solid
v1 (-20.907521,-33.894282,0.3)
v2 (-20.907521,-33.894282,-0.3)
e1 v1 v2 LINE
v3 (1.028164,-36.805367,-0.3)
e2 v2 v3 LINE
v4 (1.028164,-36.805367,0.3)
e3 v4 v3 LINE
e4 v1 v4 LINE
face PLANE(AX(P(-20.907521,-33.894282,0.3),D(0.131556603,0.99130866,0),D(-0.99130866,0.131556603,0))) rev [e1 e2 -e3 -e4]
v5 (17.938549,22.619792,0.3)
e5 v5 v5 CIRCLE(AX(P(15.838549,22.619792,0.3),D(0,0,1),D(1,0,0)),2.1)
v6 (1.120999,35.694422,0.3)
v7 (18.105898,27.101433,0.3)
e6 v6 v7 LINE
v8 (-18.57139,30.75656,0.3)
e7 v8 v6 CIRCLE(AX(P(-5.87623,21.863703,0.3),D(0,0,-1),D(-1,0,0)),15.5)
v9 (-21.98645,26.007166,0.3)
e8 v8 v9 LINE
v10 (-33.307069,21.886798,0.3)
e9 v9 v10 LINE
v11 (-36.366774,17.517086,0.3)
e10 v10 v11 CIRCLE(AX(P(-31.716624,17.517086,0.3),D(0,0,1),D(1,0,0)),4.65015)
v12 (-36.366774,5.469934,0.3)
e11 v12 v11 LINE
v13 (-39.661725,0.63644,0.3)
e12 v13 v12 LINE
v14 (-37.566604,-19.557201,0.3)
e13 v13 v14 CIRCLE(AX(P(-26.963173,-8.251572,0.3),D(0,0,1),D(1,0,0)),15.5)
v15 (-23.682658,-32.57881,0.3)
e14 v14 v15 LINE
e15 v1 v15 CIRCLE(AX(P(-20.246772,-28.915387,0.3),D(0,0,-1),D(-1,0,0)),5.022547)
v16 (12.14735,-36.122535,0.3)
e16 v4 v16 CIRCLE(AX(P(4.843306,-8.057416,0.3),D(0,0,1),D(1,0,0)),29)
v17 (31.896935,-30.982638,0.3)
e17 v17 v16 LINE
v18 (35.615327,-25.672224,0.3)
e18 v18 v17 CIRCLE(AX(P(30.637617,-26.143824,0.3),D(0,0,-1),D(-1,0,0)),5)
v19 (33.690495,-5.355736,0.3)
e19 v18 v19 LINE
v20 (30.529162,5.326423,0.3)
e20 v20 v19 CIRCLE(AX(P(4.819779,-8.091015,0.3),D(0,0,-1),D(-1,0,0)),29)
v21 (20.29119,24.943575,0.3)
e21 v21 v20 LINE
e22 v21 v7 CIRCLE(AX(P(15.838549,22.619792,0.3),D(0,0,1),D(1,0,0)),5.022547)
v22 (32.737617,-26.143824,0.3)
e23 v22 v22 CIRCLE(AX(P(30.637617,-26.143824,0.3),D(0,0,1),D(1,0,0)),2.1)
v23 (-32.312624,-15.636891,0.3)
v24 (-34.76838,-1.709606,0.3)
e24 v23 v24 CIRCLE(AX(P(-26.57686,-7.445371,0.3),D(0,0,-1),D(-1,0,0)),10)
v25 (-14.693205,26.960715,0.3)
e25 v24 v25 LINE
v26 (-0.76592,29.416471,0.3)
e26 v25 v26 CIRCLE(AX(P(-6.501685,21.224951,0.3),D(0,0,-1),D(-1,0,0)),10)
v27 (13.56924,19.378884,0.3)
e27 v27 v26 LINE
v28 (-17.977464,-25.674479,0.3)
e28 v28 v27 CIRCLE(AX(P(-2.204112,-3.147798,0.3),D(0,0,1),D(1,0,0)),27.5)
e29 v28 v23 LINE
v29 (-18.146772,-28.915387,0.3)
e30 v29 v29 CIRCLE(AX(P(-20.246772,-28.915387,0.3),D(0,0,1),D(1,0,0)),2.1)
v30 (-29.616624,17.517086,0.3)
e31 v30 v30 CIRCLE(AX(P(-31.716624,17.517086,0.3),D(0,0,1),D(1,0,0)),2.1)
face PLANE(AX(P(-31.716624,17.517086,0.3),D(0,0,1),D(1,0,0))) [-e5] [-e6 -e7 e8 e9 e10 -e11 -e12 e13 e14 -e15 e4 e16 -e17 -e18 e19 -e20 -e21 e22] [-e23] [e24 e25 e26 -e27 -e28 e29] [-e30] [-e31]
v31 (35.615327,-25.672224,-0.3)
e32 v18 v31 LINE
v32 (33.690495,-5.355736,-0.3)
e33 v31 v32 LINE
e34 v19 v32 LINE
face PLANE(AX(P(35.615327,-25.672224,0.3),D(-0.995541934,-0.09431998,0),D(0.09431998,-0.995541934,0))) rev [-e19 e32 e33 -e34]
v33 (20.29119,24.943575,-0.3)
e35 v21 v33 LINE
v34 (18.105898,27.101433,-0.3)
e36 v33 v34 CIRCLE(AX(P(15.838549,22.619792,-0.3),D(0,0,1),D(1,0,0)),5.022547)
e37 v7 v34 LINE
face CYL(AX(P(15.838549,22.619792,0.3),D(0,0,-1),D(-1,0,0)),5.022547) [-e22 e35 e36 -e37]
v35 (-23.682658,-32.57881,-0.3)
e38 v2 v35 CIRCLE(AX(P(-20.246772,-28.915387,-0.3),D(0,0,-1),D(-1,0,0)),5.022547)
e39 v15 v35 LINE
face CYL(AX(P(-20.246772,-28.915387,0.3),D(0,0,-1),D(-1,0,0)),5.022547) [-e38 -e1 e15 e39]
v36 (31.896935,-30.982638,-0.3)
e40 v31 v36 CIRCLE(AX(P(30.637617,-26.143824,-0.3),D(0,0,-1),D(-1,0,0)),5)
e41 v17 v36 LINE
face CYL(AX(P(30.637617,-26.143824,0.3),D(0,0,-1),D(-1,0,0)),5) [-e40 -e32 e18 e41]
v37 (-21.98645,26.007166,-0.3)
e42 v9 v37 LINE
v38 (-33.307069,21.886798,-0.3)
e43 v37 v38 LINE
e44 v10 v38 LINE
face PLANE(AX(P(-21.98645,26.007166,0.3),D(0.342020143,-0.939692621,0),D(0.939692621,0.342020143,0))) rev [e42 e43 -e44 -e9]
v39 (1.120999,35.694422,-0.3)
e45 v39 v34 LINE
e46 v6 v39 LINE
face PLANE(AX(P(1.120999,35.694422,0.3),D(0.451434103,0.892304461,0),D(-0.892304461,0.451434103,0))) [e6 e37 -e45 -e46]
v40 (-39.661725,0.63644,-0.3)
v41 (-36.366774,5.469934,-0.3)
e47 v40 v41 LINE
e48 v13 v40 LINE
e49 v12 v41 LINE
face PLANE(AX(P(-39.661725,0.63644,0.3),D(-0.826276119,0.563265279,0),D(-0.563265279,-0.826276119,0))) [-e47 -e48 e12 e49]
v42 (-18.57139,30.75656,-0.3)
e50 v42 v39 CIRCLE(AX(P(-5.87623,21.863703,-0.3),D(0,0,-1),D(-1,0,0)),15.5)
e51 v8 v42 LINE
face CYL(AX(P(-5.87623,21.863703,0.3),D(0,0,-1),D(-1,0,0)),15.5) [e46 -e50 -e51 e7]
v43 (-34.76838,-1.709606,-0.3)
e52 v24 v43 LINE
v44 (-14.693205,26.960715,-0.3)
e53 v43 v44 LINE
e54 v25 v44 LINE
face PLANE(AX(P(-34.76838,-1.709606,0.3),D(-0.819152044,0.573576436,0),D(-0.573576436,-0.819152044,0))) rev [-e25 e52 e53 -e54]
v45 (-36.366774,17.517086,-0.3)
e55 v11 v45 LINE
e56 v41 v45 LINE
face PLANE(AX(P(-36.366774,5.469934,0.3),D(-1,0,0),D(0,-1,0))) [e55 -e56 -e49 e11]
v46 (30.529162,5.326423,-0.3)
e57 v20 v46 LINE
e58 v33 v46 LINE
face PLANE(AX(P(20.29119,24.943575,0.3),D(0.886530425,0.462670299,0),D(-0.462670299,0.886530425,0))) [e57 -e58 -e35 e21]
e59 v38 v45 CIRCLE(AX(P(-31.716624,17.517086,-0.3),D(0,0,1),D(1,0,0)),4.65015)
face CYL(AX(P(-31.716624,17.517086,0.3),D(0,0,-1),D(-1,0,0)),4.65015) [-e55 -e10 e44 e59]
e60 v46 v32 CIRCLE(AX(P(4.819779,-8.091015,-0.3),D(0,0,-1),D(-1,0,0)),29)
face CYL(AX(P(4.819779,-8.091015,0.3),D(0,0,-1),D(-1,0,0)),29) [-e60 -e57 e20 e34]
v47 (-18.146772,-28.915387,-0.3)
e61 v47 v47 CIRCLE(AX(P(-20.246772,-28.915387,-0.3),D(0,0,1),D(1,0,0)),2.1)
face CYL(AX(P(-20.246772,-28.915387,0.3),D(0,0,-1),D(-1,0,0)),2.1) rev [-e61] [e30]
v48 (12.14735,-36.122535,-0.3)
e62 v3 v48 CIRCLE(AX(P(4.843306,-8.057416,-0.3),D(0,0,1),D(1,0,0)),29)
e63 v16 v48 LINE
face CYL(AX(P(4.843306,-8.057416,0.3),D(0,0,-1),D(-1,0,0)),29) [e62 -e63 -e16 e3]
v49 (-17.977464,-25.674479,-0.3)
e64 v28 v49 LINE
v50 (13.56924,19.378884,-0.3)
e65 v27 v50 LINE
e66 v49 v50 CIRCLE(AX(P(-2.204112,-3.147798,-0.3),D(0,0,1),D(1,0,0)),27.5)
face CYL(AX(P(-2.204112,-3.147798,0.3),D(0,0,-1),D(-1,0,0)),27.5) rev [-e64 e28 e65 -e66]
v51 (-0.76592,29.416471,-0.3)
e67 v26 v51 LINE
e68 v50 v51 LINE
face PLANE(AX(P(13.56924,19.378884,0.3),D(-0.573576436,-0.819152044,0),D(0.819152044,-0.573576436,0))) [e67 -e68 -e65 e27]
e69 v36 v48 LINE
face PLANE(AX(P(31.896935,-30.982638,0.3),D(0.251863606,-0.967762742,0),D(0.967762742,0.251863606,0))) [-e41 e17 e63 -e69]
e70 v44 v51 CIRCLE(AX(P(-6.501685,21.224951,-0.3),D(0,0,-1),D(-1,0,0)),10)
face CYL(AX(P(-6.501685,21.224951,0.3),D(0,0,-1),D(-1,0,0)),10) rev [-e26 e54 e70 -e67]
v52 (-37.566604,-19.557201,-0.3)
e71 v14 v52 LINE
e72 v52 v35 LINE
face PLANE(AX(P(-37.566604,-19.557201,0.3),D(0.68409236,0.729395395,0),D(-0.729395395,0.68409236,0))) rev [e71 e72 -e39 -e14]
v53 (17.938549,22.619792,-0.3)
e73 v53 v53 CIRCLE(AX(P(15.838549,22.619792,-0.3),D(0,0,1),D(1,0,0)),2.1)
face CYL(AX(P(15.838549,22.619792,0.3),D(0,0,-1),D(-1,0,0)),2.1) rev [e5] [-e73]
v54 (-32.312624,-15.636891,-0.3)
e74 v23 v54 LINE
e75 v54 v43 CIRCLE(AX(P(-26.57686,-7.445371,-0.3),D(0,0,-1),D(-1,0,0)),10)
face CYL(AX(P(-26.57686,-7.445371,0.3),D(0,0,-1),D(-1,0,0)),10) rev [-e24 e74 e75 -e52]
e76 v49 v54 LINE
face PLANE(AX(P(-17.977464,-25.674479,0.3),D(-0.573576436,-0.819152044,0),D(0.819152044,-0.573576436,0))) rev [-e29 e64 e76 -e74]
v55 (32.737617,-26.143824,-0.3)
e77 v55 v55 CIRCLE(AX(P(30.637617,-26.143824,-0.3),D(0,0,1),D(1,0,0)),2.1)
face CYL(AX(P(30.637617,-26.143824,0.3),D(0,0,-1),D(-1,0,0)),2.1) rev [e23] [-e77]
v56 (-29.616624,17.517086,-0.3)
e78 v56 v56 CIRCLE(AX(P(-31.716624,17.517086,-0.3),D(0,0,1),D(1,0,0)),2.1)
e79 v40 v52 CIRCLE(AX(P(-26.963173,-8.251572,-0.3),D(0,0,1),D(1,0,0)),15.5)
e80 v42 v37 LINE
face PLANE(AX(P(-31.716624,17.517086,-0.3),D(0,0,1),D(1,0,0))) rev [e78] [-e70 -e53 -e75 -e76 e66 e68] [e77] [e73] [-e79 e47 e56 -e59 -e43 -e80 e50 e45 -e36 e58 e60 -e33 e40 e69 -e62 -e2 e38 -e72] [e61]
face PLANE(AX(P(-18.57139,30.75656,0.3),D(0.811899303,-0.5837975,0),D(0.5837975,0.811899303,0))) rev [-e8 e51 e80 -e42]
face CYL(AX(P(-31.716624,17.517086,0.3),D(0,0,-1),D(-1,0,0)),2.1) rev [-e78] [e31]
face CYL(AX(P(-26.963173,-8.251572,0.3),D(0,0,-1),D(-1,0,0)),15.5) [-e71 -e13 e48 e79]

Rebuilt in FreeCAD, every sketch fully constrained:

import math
import FreeCAD as App
import Part
import Sketcher
from FreeCAD import Vector
Q = App.Units.Quantity

doc = App.newDocument("Part")
params = doc.addObject("Spreadsheet::Sheet", "Params")
for row, (alias, value) in enumerate([
    ("sketch1_radius", "29 mm"),
    ("sketch1_radius2", "5 mm"),
    ("sketch1_radius3", "10 mm"),
    ("sketch1_diameter", "4.2 mm"),
    ("sketch1_radius4", "15.5 mm"),
    ("pad1_length", "0.6 mm"),
], start=1):
    params.set(f"A{row}", alias)
    params.set(f"B{row}", "=" + value)
    params.setAlias(f"B{row}", alias)

body = doc.addObject("PartDesign::Body", "Body")

sketch1 = doc.addObject("Sketcher::SketchObject", "Sketch")
body.addObject(sketch1)
sketch1.AttachmentSupport = (doc.XY_Plane, [""])
sketch1.MapMode = "FlatFace"
sketch1.addGeometry(Part.LineSegment(Vector(35.615327, -25.672224, 0), Vector(33.690495, -5.355736, 0)), False)
sketch1.addGeometry(Part.ArcOfCircle(Part.Circle(Vector(4.819779, -8.091015, 0), Vector(0, 0, 1), 29), math.radians(5.412182), math.radians(27.559552)), False)
sketch1.addGeometry(Part.LineSegment(Vector(30.529162, 5.326423, 0), Vector(20.29119, 24.943575, 0)), False)
sketch1.addGeometry(Part.ArcOfCircle(Part.Circle(Vector(15.838549, 22.619792, 0), Vector(0, 0, 1), 5.022547), math.radians(27.559552), math.radians(63.164268)), False)
sketch1.addGeometry(Part.LineSegment(Vector(18.105898, 27.101433, 0), Vector(1.120999, 35.694422, 0)), False)
sketch1.addGeometry(Part.ArcOfCircle(Part.Circle(Vector(-5.87623, 21.863703, 0), Vector(0, 0, 1), 15.5), math.radians(63.164268), math.radians(144.98907)), False)
sketch1.addGeometry(Part.LineSegment(Vector(-18.57139, 30.75656, 0), Vector(-21.98645, 26.007166, 0)), False)
sketch1.addGeometry(Part.LineSegment(Vector(-21.98645, 26.007166, 0), Vector(-33.307069, 21.886798, 0)), False)
sketch1.addGeometry(Part.ArcOfCircle(Part.Circle(Vector(-31.716624, 17.517086, 0), Vector(0, 0, 1), 4.65015), math.radians(110), math.radians(180)), False)
sketch1.addGeometry(Part.LineSegment(Vector(-36.366774, 17.517086, 0), Vector(-36.366774, 5.469934, 0)), False)
sketch1.addGeometry(Part.LineSegment(Vector(-36.366774, 5.469934, 0), Vector(-39.661725, 0.63644, 0)), False)
sketch1.addGeometry(Part.ArcOfCircle(Part.Circle(Vector(-26.963173, -8.251572, 0), Vector(0, 0, 1), 15.5), math.radians(145.01093), math.radians(226.835732)), False)
sketch1.addGeometry(Part.LineSegment(Vector(-37.566604, -19.557201, 0), Vector(-23.682658, -32.57881, 0)), False)
sketch1.addGeometry(Part.ArcOfCircle(Part.Circle(Vector(-20.246772, -28.915387, 0), Vector(0, 0, 1), 5.022547), math.radians(-133.164268), math.radians(-97.559552)), False)
sketch1.addGeometry(Part.LineSegment(Vector(-20.907521, -33.894282, 0), Vector(1.028164, -36.805367, 0)), False)
sketch1.addGeometry(Part.ArcOfCircle(Part.Circle(Vector(4.843306, -8.057416, 0), Vector(0, 0, 1), 29), math.radians(-97.559552), math.radians(-75.412182)), False)
sketch1.addGeometry(Part.LineSegment(Vector(12.14735, -36.122535, 0), Vector(31.896935, -30.982638, 0)), False)
sketch1.addGeometry(Part.ArcOfCircle(Part.Circle(Vector(30.637617, -26.143824, 0), Vector(0, 0, 1), 5), math.radians(-75.412182), math.radians(5.412182)), False)
sketch1.addGeometry(Part.Circle(Vector(-20.246772, -28.915387, 0), Vector(0, 0, 1), 2.1), False)
sketch1.addGeometry(Part.Circle(Vector(30.637617, -26.143824, 0), Vector(0, 0, 1), 2.1), False)
sketch1.addGeometry(Part.ArcOfCircle(Part.Circle(Vector(-26.57686, -7.445371, 0), Vector(0, 0, 1), 10), math.radians(145), math.radians(235)), False)
sketch1.addGeometry(Part.LineSegment(Vector(-34.76838, -1.709606, 0), Vector(-14.693205, 26.960715, 0)), False)
sketch1.addGeometry(Part.ArcOfCircle(Part.Circle(Vector(-6.501685, 21.224951, 0), Vector(0, 0, 1), 10), math.radians(55), math.radians(145)), False)
sketch1.addGeometry(Part.LineSegment(Vector(-0.76592, 29.416471, 0), Vector(13.56924, 19.378884, 0)), False)
sketch1.addGeometry(Part.ArcOfCircle(Part.Circle(Vector(-2.204112, -3.147798, 0), Vector(0, 0, 1), 27.5), math.radians(-125), math.radians(55)), False)
sketch1.addGeometry(Part.LineSegment(Vector(-17.977464, -25.674479, 0), Vector(-32.312624, -15.636891, 0)), False)
sketch1.addGeometry(Part.Circle(Vector(-31.716624, 17.517086, 0), Vector(0, 0, 1), 2.1), False)
sketch1.addGeometry(Part.Circle(Vector(15.838549, 22.619792, 0), Vector(0, 0, 1), 2.1), False)
sketch1.addConstraint(Sketcher.Constraint("Tangent", 0, 2, 1, 1))
sketch1.addConstraint(Sketcher.Constraint("Tangent", 1, 2, 2, 1))
sketch1.addConstraint(Sketcher.Constraint("Tangent", 2, 2, 3, 1))
sketch1.addConstraint(Sketcher.Constraint("Tangent", 3, 2, 4, 1))
sketch1.addConstraint(Sketcher.Constraint("Tangent", 4, 2, 5, 1))
sketch1.addConstraint(Sketcher.Constraint("Coincident", 5, 2, 6, 1))
sketch1.addConstraint(Sketcher.Constraint("Coincident", 6, 2, 7, 1))
sketch1.addConstraint(Sketcher.Constraint("Tangent", 7, 2, 8, 1))
sketch1.addConstraint(Sketcher.Constraint("Tangent", 8, 2, 9, 1))
sketch1.addConstraint(Sketcher.Constraint("Coincident", 9, 2, 10, 1))
sketch1.addConstraint(Sketcher.Constraint("Coincident", 10, 2, 11, 1))
sketch1.addConstraint(Sketcher.Constraint("Tangent", 11, 2, 12, 1))
sketch1.addConstraint(Sketcher.Constraint("Tangent", 12, 2, 13, 1))
sketch1.addConstraint(Sketcher.Constraint("Tangent", 13, 2, 14, 1))
sketch1.addConstraint(Sketcher.Constraint("Tangent", 14, 2, 15, 1))
sketch1.addConstraint(Sketcher.Constraint("Tangent", 15, 2, 16, 1))
sketch1.addConstraint(Sketcher.Constraint("Tangent", 16, 2, 17, 1))
sketch1.addConstraint(Sketcher.Constraint("Tangent", 17, 2, 0, 1))
sketch1.addConstraint(Sketcher.Constraint("Tangent", 20, 1, 21, 1))
sketch1.addConstraint(Sketcher.Constraint("Tangent", 21, 2, 22, 2))
sketch1.addConstraint(Sketcher.Constraint("Tangent", 22, 1, 23, 1))
sketch1.addConstraint(Sketcher.Constraint("Tangent", 23, 2, 24, 2))
sketch1.addConstraint(Sketcher.Constraint("Tangent", 24, 1, 25, 1))
sketch1.addConstraint(Sketcher.Constraint("Tangent", 25, 2, 20, 2))
sketch1.addConstraint(Sketcher.Constraint("Vertical", 9))
sketch1.addConstraint(Sketcher.Constraint("Coincident", 18, 3, 13, 3))
sketch1.addConstraint(Sketcher.Constraint("Coincident", 19, 3, 17, 3))
sketch1.addConstraint(Sketcher.Constraint("Coincident", 26, 3, 8, 3))
sketch1.addConstraint(Sketcher.Constraint("Coincident", 27, 3, 3, 3))
sketch1.addConstraint(Sketcher.Constraint("Equal", 5, 11))
sketch1.addConstraint(Sketcher.Constraint("Equal", 3, 13))
sketch1.addConstraint(Sketcher.Constraint("Equal", 1, 15))
sketch1.addConstraint(Sketcher.Constraint("Equal", 18, 19))
sketch1.addConstraint(Sketcher.Constraint("Equal", 20, 22))
sketch1.addConstraint(Sketcher.Constraint("Equal", 19, 26))
sketch1.addConstraint(Sketcher.Constraint("Equal", 26, 27))
sketch1.addConstraint(Sketcher.Constraint("Perpendicular", 21, 23))
sketch1.addConstraint(Sketcher.Constraint("Parallel", 23, 25))
sketch1.addConstraint(Sketcher.Constraint("Equal", 6, 10))
sketch1.addConstraint(Sketcher.Constraint("Equal", 4, 12))
sketch1.addConstraint(Sketcher.Constraint("Equal", 2, 14))
sketch1.addConstraint(Sketcher.Constraint("Equal", 0, 16))
sketch1.addConstraint(Sketcher.Constraint("Radius", 1, Q("29 mm")))
sketch1.addConstraint(Sketcher.Constraint("Radius", 17, Q("5 mm")))
sketch1.addConstraint(Sketcher.Constraint("Radius", 20, Q("10 mm")))
sketch1.addConstraint(Sketcher.Constraint("Diameter", 18, Q("4.2 mm")))
sketch1.addConstraint(Sketcher.Constraint("Radius", 5, Q("15.5 mm")))
sketch1.addConstraint(Sketcher.Constraint("Radius", 24, Q("27.5 mm")))
sketch1.addConstraint(Sketcher.Constraint("Angle", 7, Q("-160 deg")))
sketch1.addConstraint(Sketcher.Constraint("Angle", 21, Q("55 deg")))
sketch1.addConstraint(Sketcher.Constraint("Distance", 23, Q("17.5 mm")))
sketch1.addConstraint(Sketcher.Constraint("Radius", 8, Q("4.65015 mm")))
sketch1.addConstraint(Sketcher.Constraint("DistanceX", -1, 1, 4, 2, Q("1.120999 mm")))
sketch1.addConstraint(Sketcher.Constraint("Radius", 3, Q("5.022547 mm")))
sketch1.addConstraint(Sketcher.Constraint("DistanceY", 9, 2, 9, 1, Q("12.047152 mm")))
sketch1.addConstraint(Sketcher.Constraint("DistanceY", 11, 2, -1, 1, Q("19.557201 mm")))
sketch1.addConstraint(Sketcher.Constraint("DistanceY", 1, 3, 8, 3, Q("25.608102 mm")))
sketch1.addConstraint(Sketcher.Constraint("DistanceX", 11, 3, 13, 3, Q("6.716401 mm")))
sketch1.addConstraint(Sketcher.Constraint("DistanceY", 1, 3, 15, 3, Q("0.0336 mm")))
sketch1.addConstraint(Sketcher.Constraint("DistanceY", 11, 3, 20, 3, Q("0.806201 mm")))
sketch1.addConstraint(Sketcher.Constraint("DistanceY", 24, 3, 5, 3, Q("25.011501 mm")))
sketch1.addConstraint(Sketcher.Constraint("DistanceX", 4, 2, 3, 2, Q("16.984899 mm")))
sketch1.addConstraint(Sketcher.Constraint("DistanceX", 9, 2, 11, 3, Q("9.403601 mm")))
sketch1.addConstraint(Sketcher.Constraint("DistanceX", 10, 2, 26, 3, Q("7.945101 mm")))
sketch1.addConstraint(Sketcher.Constraint("DistanceX", 20, 3, 12, 2, Q("2.894202 mm")))
sketch1.addConstraint(Sketcher.Constraint("DistanceY", 16, 2, 0, 2, Q("25.626901 mm")))
sketch1.addConstraint(Sketcher.Constraint("DistanceY", 17, 3, 17, 2, Q("0.4716 mm")))
sketch1.addConstraint(Sketcher.Constraint("Distance", 4, Q("19.03487 mm")))
sketch1.addConstraint(Sketcher.Constraint("Distance", 7, Q("12.047152 mm")))
sketch1.addConstraint(Sketcher.Constraint("DistanceX", -1, 1, 1, 3, Q("4.819779 mm")))
sketch1.addConstraint(Sketcher.Constraint("DistanceX", 13, 3, -1, 1, Q("20.246772 mm")))
sketch1.setExpression("Constraints[42]", "Params.sketch1_radius")
sketch1.setExpression("Constraints[43]", "Params.sketch1_radius2")
sketch1.setExpression("Constraints[44]", "Params.sketch1_radius3")
sketch1.setExpression("Constraints[45]", "Params.sketch1_diameter")
sketch1.setExpression("Constraints[46]", "Params.sketch1_radius4")
pad1 = doc.addObject("PartDesign::Pad", "Pad")
body.addObject(pad1)
pad1.Profile = sketch1
pad1.setExpression("Length", "Params.pad1_length")
pad1.Midplane = True

doc.recompute()
